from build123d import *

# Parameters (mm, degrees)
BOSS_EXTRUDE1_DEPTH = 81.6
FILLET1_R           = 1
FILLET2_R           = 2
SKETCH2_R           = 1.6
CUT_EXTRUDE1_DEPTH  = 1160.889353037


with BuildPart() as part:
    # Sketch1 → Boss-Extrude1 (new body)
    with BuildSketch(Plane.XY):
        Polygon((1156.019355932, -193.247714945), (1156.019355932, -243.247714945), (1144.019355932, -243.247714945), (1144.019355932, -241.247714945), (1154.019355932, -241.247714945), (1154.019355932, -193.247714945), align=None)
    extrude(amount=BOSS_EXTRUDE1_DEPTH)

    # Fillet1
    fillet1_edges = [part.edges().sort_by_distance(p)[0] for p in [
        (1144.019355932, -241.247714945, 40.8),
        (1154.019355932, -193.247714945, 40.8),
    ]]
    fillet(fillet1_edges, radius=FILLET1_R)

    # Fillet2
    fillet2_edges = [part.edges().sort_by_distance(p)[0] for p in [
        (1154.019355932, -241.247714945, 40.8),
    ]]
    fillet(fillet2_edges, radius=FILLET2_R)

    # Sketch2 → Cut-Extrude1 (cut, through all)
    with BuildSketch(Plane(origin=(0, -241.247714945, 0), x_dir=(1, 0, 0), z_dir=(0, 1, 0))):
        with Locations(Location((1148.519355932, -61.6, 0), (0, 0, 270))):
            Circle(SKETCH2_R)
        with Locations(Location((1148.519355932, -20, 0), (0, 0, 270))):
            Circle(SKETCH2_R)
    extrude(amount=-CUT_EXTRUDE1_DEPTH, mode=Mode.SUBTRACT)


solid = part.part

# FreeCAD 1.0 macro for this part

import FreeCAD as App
import Part
import Sketcher
from FreeCAD import Vector


def edges_at(feature, points):
    """Names of the edges that pass closest to the given points."""
    edges = feature.Shape.Edges
    near = lambda p: min(range(len(edges)), key=lambda i: edges[i].distToShape(Part.Vertex(*p))[0])
    return sorted({f"Edge{near(p) + 1}" for p in points})

doc = App.newDocument("Part")
body = doc.addObject("PartDesign::Body", "Body")

sketch1 = body.newObject("Sketcher::SketchObject", "Sketch")
sketch1.AttachmentSupport = (doc.getObject("XY_Plane"), [""])
sketch1.MapMode = "FlatFace"
sketch1.addGeometry([
    Part.LineSegment(Vector(1156, -243.2, 0), Vector(1156, -193.2, 0)),
    Part.LineSegment(Vector(1156, -193.2, 0), Vector(1154, -193.2, 0)),
    Part.LineSegment(Vector(1154, -193.2, 0), Vector(1154, -241.2, 0)),
    Part.LineSegment(Vector(1154, -241.2, 0), Vector(1144, -241.2, 0)),
    Part.LineSegment(Vector(1144, -241.2, 0), Vector(1144, -243.2, 0)),
    Part.LineSegment(Vector(1144, -243.2, 0), Vector(1156, -243.2, 0)),
], False)
sketch1.addConstraint([
    Sketcher.Constraint("Coincident", 0, 2, 1, 1),
    Sketcher.Constraint("Coincident", 1, 2, 2, 1),
    Sketcher.Constraint("Coincident", 2, 2, 3, 1),
    Sketcher.Constraint("Coincident", 3, 2, 4, 1),
    Sketcher.Constraint("Coincident", 4, 2, 5, 1),
    Sketcher.Constraint("Coincident", 5, 2, 0, 1),
    Sketcher.Constraint("Vertical", 0),
    Sketcher.Constraint("Horizontal", 1),
    Sketcher.Constraint("Vertical", 2),
    Sketcher.Constraint("Horizontal", 3),
    Sketcher.Constraint("Vertical", 4),
    Sketcher.Constraint("Horizontal", 5),
    Sketcher.Constraint("Equal", 1, 4),
    Sketcher.Constraint("DistanceX", 1, 2, 1, 1, 2.0),
    Sketcher.Constraint("DistanceX", 3, 2, 3, 1, 10.0),
    Sketcher.Constraint("DistanceY", 0, 1, 0, 2, 50.0),
    Sketcher.Constraint("DistanceX", -1, 1, 0, 2, 1156.019356),
    Sketcher.Constraint("DistanceY", 0, 2, -1, 1, 193.247715),
])
pad1 = body.newObject("PartDesign::Pad", "Pad")
pad1.Profile = sketch1
pad1.Length = 81.6
doc.recompute()

fillet = body.newObject("PartDesign::Fillet", "Fillet")
fillet.Base = (pad1, edges_at(pad1, [(1144.019, -241.248, 40.8), (1154.019, -193.248, 40.8)]))
fillet.Radius = 1
doc.recompute()

fillet2 = body.newObject("PartDesign::Fillet", "Fillet001")
fillet2.Base = (fillet, edges_at(fillet, [(1154.019, -241.248, 40.8)]))
fillet2.Radius = 2

sketch2 = body.newObject("Sketcher::SketchObject", "Sketch001")
sketch2.AttachmentSupport = (doc.getObject("XZ_Plane"), [""])
sketch2.MapMode = "FlatFace"
sketch2.AttachmentOffset = App.Placement(Vector(0, 0, 241.247715), App.Rotation())
sketch2.addGeometry([
    Part.Circle(Vector(1148.5, 61.6, 0), Vector(0, 0, 1), 1.6),
    Part.Circle(Vector(1148.5, 20, 0), Vector(0, 0, 1), 1.6),
], False)
sketch2.addConstraint([
    Sketcher.Constraint("Equal", 0, 1),
    Sketcher.Constraint("Vertical", 0, 3, 1, 3),
    Sketcher.Constraint("Diameter", 0, 3.2),
    Sketcher.Constraint("DistanceY", -1, 1, 1, 3, 20.0),
    Sketcher.Constraint("DistanceY", -1, 1, 0, 3, 61.6),
    Sketcher.Constraint("DistanceX", -1, 1, 0, 3, 1148.519356),
])
pocket1 = body.newObject("PartDesign::Pocket", "Pocket")
pocket1.Profile = sketch2
pocket1.Type = "ThroughAll"
pocket1.Reversed = True

doc.recompute()
